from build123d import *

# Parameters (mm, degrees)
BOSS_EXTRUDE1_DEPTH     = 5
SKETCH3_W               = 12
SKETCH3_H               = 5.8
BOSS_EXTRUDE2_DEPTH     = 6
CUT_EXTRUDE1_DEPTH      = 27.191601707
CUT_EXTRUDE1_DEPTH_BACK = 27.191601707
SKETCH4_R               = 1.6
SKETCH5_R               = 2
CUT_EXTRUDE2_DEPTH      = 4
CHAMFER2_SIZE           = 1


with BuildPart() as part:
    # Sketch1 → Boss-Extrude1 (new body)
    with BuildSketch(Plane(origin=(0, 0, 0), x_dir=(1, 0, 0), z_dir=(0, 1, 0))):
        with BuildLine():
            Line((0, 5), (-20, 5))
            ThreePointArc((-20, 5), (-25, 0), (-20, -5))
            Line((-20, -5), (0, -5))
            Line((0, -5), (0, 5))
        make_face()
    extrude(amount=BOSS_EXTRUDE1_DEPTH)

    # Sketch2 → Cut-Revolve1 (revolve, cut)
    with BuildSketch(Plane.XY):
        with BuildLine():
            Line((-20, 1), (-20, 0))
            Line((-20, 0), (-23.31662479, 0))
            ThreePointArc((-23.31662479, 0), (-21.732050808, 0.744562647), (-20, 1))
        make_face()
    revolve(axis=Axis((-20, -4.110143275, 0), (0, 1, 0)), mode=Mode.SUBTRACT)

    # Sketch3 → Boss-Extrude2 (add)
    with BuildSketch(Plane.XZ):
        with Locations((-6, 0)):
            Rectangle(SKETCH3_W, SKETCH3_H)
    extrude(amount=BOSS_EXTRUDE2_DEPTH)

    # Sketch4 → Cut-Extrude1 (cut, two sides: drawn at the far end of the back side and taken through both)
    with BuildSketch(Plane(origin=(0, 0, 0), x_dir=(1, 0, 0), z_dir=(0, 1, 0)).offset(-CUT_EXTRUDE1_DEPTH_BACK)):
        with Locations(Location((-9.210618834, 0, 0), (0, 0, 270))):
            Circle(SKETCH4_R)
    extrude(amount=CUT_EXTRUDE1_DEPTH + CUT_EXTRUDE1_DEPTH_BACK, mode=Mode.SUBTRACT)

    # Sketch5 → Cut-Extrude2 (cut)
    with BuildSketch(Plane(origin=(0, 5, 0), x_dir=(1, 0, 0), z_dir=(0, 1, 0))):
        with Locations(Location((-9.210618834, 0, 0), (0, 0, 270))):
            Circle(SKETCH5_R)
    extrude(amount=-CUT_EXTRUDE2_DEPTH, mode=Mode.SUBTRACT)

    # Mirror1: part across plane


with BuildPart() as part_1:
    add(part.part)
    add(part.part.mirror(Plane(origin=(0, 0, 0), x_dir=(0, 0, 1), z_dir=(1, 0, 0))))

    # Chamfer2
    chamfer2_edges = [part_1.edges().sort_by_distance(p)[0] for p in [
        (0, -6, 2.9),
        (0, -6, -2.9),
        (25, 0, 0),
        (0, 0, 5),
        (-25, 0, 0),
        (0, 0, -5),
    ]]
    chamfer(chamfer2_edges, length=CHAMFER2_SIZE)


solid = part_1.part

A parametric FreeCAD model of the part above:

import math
import FreeCAD as App
import Part
import Sketcher

V = App.Vector
Q = App.Units.Quantity


def edges_at(feature, points):
    """Names of the edges that pass closest to the given points."""
    edges = feature.Shape.Edges
    near = lambda p: min(range(len(edges)), key=lambda i: edges[i].distToShape(Part.Vertex(*p))[0])
    return sorted({f"Edge{near(p) + 1}" for p in points})


def add_polygon(sketch, points):
    """Adds a closed chain of lines whose ends are joined by coincident constraints."""
    first, n = sketch.GeometryCount, len(points)
    for a, b in zip(points, points[1:] + points[:1]):
        sketch.addGeometry(Part.LineSegment(App.Vector(*a, 0), App.Vector(*b, 0)), False)
    for i in range(n):
        sketch.addConstraint(Sketcher.Constraint("Coincident", first + i, 2, first + (i + 1) % n, 1))

doc = App.newDocument("Part")
body = doc.addObject("PartDesign::Body", "Body")

# Sketch on XZ plane
sketch1 = body.newObject("Sketcher::SketchObject", "Sketch")
sketch1.AttachmentSupport = (doc.getObject("XZ_Plane"), [""])
sketch1.MapMode = "FlatFace"
sketch1.addGeometry([
    Part.LineSegment(V(0, -5, 0), V(-20, -5, 0)),
    Part.ArcOfCircle(Part.Circle(V(-20, 0, 0), V(0, 0, 1), 5), math.radians(90), math.radians(270)),
    Part.LineSegment(V(-20, 5, 0), V(0, 5, 0)),
    Part.LineSegment(V(0, 5, 0), V(0, -5, 0)),
], False)
sketch1.addConstraint([
    Sketcher.Constraint("Tangent", 0, 2, 1, 2),
    Sketcher.Constraint("Tangent", 1, 1, 2, 1),
    Sketcher.Constraint("Coincident", 2, 2, 3, 1),
    Sketcher.Constraint("Coincident", 3, 2, 0, 1),
    Sketcher.Constraint("Horizontal", 0),
    Sketcher.Constraint("Horizontal", 2),
    Sketcher.Constraint("Vertical", 3),
    Sketcher.Constraint("Symmetric", 2, 2, 3, 2, -1, 1),
    Sketcher.Constraint("Radius", 1, Q("5 mm")),
    Sketcher.Constraint("DistanceX", 0, 2, 0, 1, Q("20 mm")),
])
pad1 = body.newObject("PartDesign::Pad", "Pad")
pad1.Profile = sketch1
pad1.Length = 5
pad1.Reversed = True

# Sketch on XY plane
sketch2 = body.newObject("Sketcher::SketchObject", "Sketch001")
sketch2.AttachmentSupport = (doc.getObject("XY_Plane"), [""])
sketch2.MapMode = "FlatFace"
sketch2.addGeometry([
    Part.LineSegment(V(-20, 0, 0), V(-20, 1, 0)),
    Part.ArcOfCircle(Part.Circle(V(-20, -5, 0), V(0, 0, 1), 6), math.radians(90), math.radians(124)),
    Part.LineSegment(V(-23.3, 0, 0), V(-20, 0, 0)),
], False)
sketch2.addGeometry(Part.LineSegment(V(-20, -5, 0), V(-20, 1, 0)), True)  # axis
sketch2.addConstraint([
    Sketcher.Constraint("Coincident", 0, 2, 1, 1),
    Sketcher.Constraint("Coincident", 1, 2, 2, 1),
    Sketcher.Constraint("Coincident", 2, 2, 0, 1),
    Sketcher.Constraint("Vertical", 0),
    Sketcher.Constraint("Horizontal", 2),
    Sketcher.Constraint("Vertical", 3),
    Sketcher.Constraint("Coincident", 3, 1, 1, 3),
    Sketcher.Constraint("Coincident", 3, 2, 0, 2),
    Sketcher.Constraint("PointOnObject", 1, 2, -1),
    Sketcher.Constraint("Radius", 1, Q("6 mm")),
    Sketcher.Constraint("DistanceY", 0, 1, 0, 2, Q("1 mm")),
    Sketcher.Constraint("DistanceX", 1, 3, -1, 1, Q("20 mm")),
])
groove = body.newObject("PartDesign::Groove", "Groove")
groove.Profile = sketch2
groove.ReferenceAxis = (sketch2, ["Axis0"])
groove.Angle = 360

# Sketch on XZ plane
sketch3 = body.newObject("Sketcher::SketchObject", "Sketch002")
sketch3.AttachmentSupport = (doc.getObject("XZ_Plane"), [""])
sketch3.MapMode = "FlatFace"
add_polygon(sketch3, [(-12, 3), (-12, -3), (0, -3), (0, 3)])  # lines 0-3
sketch3.addConstraint([
    Sketcher.Constraint("Vertical", 0),
    Sketcher.Constraint("Horizontal", 1),
    Sketcher.Constraint("Vertical", 2),
    Sketcher.Constraint("Horizontal", 3),
    Sketcher.Constraint("Symmetric", 1, 2, 2, 2, -1, 1),
    Sketcher.Constraint("DistanceX", 1, 1, 1, 2, Q("12 mm")),
    Sketcher.Constraint("DistanceY", 0, 2, 0, 1, Q("5.8 mm")),
])
pad2 = body.newObject("PartDesign::Pad", "Pad001")
pad2.Profile = sketch3
pad2.Length = 6

# Sketch on XZ plane
sketch4 = body.newObject("Sketcher::SketchObject", "Sketch003")
sketch4.AttachmentSupport = (doc.getObject("XZ_Plane"), [""])
sketch4.MapMode = "FlatFace"
sketch4.addGeometry(Part.Circle(V(-9.2, 0, 0), V(0, 0, 1), 1.6), False)
sketch4.addConstraint([
    Sketcher.Constraint("PointOnObject", 0, 3, -1),
    Sketcher.Constraint("Diameter", 0, Q("3.2 mm")),
    Sketcher.Constraint("DistanceX", 0, 3, -1, 1, Q("9.210619 mm")),
])
pocket1 = body.newObject("PartDesign::Pocket", "Pocket")
pocket1.Profile = sketch4
pocket1.Type = "ThroughAll"
pocket1.Midplane = True

# Sketch on XZ plane
sketch5 = body.newObject("Sketcher::SketchObject", "Sketch004")
sketch5.AttachmentSupport = (doc.getObject("XZ_Plane"), [""])
sketch5.MapMode = "FlatFace"
sketch5.AttachmentOffset = App.Placement(V(0, 0, -5), App.Rotation())
sketch5.addGeometry(Part.Circle(V(-9.2, 0, 0), V(0, 0, 1), 2), False)
sketch5.addConstraint([
    Sketcher.Constraint("PointOnObject", 0, 3, -1),
    Sketcher.Constraint("Diameter", 0, Q("4 mm")),
    Sketcher.Constraint("DistanceX", 0, 3, -1, 1, Q("9.210619 mm")),
])
pocket2 = body.newObject("PartDesign::Pocket", "Pocket001")
pocket2.Profile = sketch5
pocket2.Length = 4
pocket2.Reversed = True
body2 = doc.addObject("PartDesign::Body", "Body001")
doc.recompute()

body2.BaseFeature = body
doc.recompute()

mirroring = doc.addObject("Part::Mirroring", "Mirroring")
mirroring.Source = body
mirroring.Base = V(0, 0, 0)
mirroring.Normal = V(1, 0, 0)
body3 = doc.addObject("PartDesign::Body", "Body002")
body3.BaseFeature = mirroring
boolean = body2.newObject("PartDesign::Boolean", "Boolean")
boolean.Type = "Fuse"
boolean.addObjects([body3])
doc.recompute()

chamfer = body2.newObject("PartDesign::Chamfer", "Chamfer")
chamfer.Base = (boolean, edges_at(boolean, [
    (0, -6, 2.9),
    (0, -6, -2.9),
    (25, 0, 0),
    (0, 0, 5),
    (-25, 0, 0),
    (0, 0, -5),
]))
chamfer.Size = 1
mirroring.Visibility = False

doc.recompute()
